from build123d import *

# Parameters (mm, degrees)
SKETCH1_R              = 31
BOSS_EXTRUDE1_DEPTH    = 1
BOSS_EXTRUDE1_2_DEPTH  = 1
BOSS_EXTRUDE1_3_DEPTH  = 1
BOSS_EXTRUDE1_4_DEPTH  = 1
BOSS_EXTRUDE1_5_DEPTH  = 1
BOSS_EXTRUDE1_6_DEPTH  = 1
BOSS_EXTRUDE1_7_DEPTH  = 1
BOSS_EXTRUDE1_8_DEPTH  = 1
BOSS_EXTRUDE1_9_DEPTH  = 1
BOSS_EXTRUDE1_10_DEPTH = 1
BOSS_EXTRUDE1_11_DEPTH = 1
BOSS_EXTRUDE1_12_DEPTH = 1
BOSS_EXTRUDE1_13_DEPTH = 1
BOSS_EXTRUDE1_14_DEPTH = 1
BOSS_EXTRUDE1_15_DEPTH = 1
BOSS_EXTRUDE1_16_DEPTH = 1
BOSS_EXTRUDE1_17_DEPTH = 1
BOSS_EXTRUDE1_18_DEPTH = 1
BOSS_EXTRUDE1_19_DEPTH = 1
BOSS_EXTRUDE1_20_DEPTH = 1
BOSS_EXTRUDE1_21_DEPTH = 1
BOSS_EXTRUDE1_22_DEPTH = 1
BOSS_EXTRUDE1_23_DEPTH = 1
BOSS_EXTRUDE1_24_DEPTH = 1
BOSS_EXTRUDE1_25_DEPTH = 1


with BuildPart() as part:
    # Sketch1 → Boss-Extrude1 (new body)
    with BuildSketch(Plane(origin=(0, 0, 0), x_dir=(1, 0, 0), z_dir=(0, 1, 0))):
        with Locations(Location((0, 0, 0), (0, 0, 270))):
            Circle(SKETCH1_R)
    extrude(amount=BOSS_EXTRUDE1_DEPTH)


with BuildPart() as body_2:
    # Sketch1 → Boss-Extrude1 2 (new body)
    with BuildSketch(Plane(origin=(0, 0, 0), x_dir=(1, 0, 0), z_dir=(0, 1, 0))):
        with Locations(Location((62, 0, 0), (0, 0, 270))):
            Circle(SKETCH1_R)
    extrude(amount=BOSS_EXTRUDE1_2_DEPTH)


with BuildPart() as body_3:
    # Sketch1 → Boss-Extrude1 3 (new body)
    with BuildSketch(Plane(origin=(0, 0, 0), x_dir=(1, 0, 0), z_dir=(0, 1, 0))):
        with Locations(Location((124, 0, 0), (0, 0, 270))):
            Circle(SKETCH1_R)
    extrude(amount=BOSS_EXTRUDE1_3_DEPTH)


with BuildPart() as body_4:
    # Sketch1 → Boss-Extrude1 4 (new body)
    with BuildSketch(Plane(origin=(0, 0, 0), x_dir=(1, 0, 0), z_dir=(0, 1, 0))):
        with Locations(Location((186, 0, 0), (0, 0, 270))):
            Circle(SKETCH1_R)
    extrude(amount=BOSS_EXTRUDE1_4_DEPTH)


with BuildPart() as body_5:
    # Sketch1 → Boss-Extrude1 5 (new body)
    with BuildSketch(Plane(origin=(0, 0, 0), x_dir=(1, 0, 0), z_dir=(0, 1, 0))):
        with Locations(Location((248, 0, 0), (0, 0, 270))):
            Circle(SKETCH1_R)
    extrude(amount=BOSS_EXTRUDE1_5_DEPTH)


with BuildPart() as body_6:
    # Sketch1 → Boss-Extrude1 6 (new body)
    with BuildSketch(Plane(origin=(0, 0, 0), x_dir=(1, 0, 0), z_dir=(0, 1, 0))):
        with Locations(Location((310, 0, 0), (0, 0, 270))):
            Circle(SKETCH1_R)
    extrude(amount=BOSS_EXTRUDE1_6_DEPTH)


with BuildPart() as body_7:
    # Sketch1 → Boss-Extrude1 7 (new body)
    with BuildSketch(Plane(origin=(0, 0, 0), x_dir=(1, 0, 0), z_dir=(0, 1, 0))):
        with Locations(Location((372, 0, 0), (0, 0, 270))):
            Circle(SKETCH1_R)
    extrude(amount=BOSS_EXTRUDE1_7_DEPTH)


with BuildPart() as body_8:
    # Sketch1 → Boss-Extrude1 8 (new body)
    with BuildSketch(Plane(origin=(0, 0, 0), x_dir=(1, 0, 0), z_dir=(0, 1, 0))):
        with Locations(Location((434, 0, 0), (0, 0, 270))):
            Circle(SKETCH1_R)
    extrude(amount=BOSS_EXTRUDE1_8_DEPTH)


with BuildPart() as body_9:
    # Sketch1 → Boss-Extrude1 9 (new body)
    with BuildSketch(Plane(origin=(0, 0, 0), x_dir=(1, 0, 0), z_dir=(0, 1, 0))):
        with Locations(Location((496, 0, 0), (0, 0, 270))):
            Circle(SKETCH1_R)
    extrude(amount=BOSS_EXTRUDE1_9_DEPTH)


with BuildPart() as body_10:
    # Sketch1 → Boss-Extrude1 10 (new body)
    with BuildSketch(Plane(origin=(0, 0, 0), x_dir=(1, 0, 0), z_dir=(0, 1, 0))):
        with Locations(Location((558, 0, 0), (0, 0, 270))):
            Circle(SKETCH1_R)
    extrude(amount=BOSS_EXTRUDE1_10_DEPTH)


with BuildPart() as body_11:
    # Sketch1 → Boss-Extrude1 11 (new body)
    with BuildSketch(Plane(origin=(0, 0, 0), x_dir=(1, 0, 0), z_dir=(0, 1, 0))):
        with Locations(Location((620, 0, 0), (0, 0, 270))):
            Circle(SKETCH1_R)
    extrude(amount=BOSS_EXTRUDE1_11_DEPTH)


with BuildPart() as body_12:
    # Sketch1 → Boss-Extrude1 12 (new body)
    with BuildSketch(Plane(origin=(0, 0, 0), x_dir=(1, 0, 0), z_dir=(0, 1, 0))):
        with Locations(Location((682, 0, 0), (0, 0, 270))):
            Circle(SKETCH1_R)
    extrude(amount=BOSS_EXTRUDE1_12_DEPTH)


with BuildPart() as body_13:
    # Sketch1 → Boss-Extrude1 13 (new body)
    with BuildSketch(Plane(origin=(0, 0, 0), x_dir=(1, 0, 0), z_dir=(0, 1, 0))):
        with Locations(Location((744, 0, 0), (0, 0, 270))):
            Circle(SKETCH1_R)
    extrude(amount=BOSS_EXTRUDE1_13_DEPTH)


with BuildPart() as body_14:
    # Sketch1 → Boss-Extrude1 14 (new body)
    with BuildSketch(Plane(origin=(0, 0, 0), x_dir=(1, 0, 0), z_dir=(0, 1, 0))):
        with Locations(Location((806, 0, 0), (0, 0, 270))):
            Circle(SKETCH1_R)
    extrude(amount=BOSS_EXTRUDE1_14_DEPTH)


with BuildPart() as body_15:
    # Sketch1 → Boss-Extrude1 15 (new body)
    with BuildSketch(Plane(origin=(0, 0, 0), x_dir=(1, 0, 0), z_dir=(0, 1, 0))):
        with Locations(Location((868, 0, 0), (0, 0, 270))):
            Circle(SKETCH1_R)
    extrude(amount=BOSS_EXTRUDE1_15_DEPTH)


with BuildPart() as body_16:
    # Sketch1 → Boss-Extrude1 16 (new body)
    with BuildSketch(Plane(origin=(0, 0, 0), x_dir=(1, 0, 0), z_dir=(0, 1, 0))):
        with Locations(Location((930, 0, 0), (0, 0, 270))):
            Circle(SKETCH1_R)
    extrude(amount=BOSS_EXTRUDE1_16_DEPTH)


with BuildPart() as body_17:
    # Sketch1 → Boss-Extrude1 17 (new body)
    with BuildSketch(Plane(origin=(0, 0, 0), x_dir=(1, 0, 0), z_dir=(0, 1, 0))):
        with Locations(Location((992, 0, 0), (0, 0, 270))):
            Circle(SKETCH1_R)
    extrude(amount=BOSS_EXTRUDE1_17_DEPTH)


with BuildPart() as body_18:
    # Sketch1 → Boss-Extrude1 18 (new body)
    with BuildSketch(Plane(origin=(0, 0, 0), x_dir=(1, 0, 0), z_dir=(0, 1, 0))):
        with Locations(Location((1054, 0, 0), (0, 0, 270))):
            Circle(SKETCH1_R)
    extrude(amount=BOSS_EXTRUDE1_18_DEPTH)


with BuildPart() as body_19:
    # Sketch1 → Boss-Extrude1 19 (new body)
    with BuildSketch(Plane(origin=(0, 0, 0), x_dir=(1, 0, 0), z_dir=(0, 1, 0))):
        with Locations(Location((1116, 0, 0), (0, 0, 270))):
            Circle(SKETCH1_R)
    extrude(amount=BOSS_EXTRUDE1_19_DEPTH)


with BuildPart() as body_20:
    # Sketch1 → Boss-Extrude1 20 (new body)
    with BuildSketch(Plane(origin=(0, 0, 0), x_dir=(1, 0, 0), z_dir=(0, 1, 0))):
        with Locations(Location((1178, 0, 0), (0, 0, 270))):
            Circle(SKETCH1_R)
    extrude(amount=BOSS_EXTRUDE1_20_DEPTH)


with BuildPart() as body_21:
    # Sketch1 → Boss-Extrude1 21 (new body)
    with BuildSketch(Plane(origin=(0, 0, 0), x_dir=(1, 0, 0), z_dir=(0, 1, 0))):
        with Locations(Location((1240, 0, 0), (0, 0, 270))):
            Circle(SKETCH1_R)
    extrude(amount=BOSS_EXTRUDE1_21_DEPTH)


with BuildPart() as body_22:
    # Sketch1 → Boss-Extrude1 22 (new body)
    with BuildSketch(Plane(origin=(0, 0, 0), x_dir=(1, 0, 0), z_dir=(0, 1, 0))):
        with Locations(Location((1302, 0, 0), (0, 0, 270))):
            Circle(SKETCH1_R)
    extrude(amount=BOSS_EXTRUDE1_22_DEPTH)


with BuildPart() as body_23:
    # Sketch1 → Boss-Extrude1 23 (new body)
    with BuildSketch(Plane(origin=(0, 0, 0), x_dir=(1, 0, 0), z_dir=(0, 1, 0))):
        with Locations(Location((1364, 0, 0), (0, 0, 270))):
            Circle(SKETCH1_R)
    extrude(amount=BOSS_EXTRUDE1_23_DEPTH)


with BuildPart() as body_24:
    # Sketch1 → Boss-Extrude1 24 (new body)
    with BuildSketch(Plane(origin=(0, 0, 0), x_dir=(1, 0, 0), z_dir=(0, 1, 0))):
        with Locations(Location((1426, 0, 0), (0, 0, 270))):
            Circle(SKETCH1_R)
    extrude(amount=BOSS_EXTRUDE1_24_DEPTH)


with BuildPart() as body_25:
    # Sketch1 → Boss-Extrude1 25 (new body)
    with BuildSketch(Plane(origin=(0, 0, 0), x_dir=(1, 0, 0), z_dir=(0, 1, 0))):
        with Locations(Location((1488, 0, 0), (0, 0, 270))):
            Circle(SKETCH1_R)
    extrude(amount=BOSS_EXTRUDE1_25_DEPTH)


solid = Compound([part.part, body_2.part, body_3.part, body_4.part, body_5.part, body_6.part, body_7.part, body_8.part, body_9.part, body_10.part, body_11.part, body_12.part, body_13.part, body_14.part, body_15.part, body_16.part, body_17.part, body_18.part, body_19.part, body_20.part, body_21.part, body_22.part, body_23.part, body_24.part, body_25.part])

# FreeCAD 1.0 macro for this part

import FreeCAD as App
import Part
import Sketcher

V = App.Vector

doc = App.newDocument("Part")
body = doc.addObject("PartDesign::Body", "Body")

sketch1 = body.newObject("Sketcher::SketchObject", "Sketch")
sketch1.AttachmentSupport = (doc.getObject("XZ_Plane"), [""])
sketch1.MapMode = "FlatFace"
sketch1.addGeometry(Part.Circle(V(0, 0, 0), V(0, 0, 1), 31), False)
sketch1.addConstraint([
    Sketcher.Constraint("Coincident", 0, 3, -1, 1),
    Sketcher.Constraint("Diameter", 0, 62.0),
])
pad1 = body.newObject("PartDesign::Pad", "Pad")
pad1.Profile = sketch1
pad1.Length = 1
pad1.Reversed = True
body2 = doc.addObject("PartDesign::Body", "Body001")

sketch2 = body2.newObject("Sketcher::SketchObject", "Sketch001")
sketch2.AttachmentSupport = (doc.getObject("XZ_Plane001"), [""])
sketch2.MapMode = "FlatFace"
sketch2.addGeometry(Part.Circle(V(62, 0, 0), V(0, 0, 1), 31), False)
sketch2.addConstraint([
    Sketcher.Constraint("PointOnObject", 0, 3, -1),
    Sketcher.Constraint("Diameter", 0, 62.0),
    Sketcher.Constraint("DistanceX", -1, 1, 0, 3, 62.0),
])
pad2 = body2.newObject("PartDesign::Pad", "Pad001")
pad2.Profile = sketch2
pad2.Length = 1
pad2.Reversed = True
body3 = doc.addObject("PartDesign::Body", "Body002")

sketch3 = body3.newObject("Sketcher::SketchObject", "Sketch002")
sketch3.AttachmentSupport = (doc.getObject("XZ_Plane002"), [""])
sketch3.MapMode = "FlatFace"
sketch3.addGeometry(Part.Circle(V(124, 0, 0), V(0, 0, 1), 31), False)
sketch3.addConstraint([
    Sketcher.Constraint("PointOnObject", 0, 3, -1),
    Sketcher.Constraint("Diameter", 0, 62.0),
    Sketcher.Constraint("DistanceX", -1, 1, 0, 3, 124.0),
])
pad3 = body3.newObject("PartDesign::Pad", "Pad002")
pad3.Profile = sketch3
pad3.Length = 1
pad3.Reversed = True
body4 = doc.addObject("PartDesign::Body", "Body003")

sketch4 = body4.newObject("Sketcher::SketchObject", "Sketch003")
sketch4.AttachmentSupport = (doc.getObject("XZ_Plane003"), [""])
sketch4.MapMode = "FlatFace"
sketch4.addGeometry(Part.Circle(V(186, 0, 0), V(0, 0, 1), 31), False)
sketch4.addConstraint([
    Sketcher.Constraint("PointOnObject", 0, 3, -1),
    Sketcher.Constraint("Diameter", 0, 62.0),
    Sketcher.Constraint("DistanceX", -1, 1, 0, 3, 186.0),
])
pad4 = body4.newObject("PartDesign::Pad", "Pad003")
pad4.Profile = sketch4
pad4.Length = 1
pad4.Reversed = True
body5 = doc.addObject("PartDesign::Body", "Body004")

sketch5 = body5.newObject("Sketcher::SketchObject", "Sketch004")
sketch5.AttachmentSupport = (doc.getObject("XZ_Plane004"), [""])
sketch5.MapMode = "FlatFace"
sketch5.addGeometry(Part.Circle(V(248, 0, 0), V(0, 0, 1), 31), False)
sketch5.addConstraint([
    Sketcher.Constraint("PointOnObject", 0, 3, -1),
    Sketcher.Constraint("Diameter", 0, 62.0),
    Sketcher.Constraint("DistanceX", -1, 1, 0, 3, 248.0),
])
pad5 = body5.newObject("PartDesign::Pad", "Pad004")
pad5.Profile = sketch5
pad5.Length = 1
pad5.Reversed = True
body6 = doc.addObject("PartDesign::Body", "Body005")

sketch6 = body6.newObject("Sketcher::SketchObject", "Sketch005")
sketch6.AttachmentSupport = (doc.getObject("XZ_Plane005"), [""])
sketch6.MapMode = "FlatFace"
sketch6.addGeometry(Part.Circle(V(310, 0, 0), V(0, 0, 1), 31), False)
sketch6.addConstraint([
    Sketcher.Constraint("PointOnObject", 0, 3, -1),
    Sketcher.Constraint("Diameter", 0, 62.0),
    Sketcher.Constraint("DistanceX", -1, 1, 0, 3, 310.0),
])
pad6 = body6.newObject("PartDesign::Pad", "Pad005")
pad6.Profile = sketch6
pad6.Length = 1
pad6.Reversed = True
body7 = doc.addObject("PartDesign::Body", "Body006")

sketch7 = body7.newObject("Sketcher::SketchObject", "Sketch006")
sketch7.AttachmentSupport = (doc.getObject("XZ_Plane006"), [""])
sketch7.MapMode = "FlatFace"
sketch7.addGeometry(Part.Circle(V(372, 0, 0), V(0, 0, 1), 31), False)
sketch7.addConstraint([
    Sketcher.Constraint("PointOnObject", 0, 3, -1),
    Sketcher.Constraint("Diameter", 0, 62.0),
    Sketcher.Constraint("DistanceX", -1, 1, 0, 3, 372.0),
])
pad7 = body7.newObject("PartDesign::Pad", "Pad006")
pad7.Profile = sketch7
pad7.Length = 1
pad7.Reversed = True
body8 = doc.addObject("PartDesign::Body", "Body007")

sketch8 = body8.newObject("Sketcher::SketchObject", "Sketch007")
sketch8.AttachmentSupport = (doc.getObject("XZ_Plane007"), [""])
sketch8.MapMode = "FlatFace"
sketch8.addGeometry(Part.Circle(V(434, 0, 0), V(0, 0, 1), 31), False)
sketch8.addConstraint([
    Sketcher.Constraint("PointOnObject", 0, 3, -1),
    Sketcher.Constraint("Diameter", 0, 62.0),
    Sketcher.Constraint("DistanceX", -1, 1, 0, 3, 434.0),
])
pad8 = body8.newObject("PartDesign::Pad", "Pad007")
pad8.Profile = sketch8
pad8.Length = 1
pad8.Reversed = True
body9 = doc.addObject("PartDesign::Body", "Body008")

sketch9 = body9.newObject("Sketcher::SketchObject", "Sketch008")
sketch9.AttachmentSupport = (doc.getObject("XZ_Plane008"), [""])
sketch9.MapMode = "FlatFace"
sketch9.addGeometry(Part.Circle(V(496, 0, 0), V(0, 0, 1), 31), False)
sketch9.addConstraint([
    Sketcher.Constraint("PointOnObject", 0, 3, -1),
    Sketcher.Constraint("Diameter", 0, 62.0),
    Sketcher.Constraint("DistanceX", -1, 1, 0, 3, 496.0),
])
pad9 = body9.newObject("PartDesign::Pad", "Pad008")
pad9.Profile = sketch9
pad9.Length = 1
pad9.Reversed = True
body10 = doc.addObject("PartDesign::Body", "Body009")

sketch10 = body10.newObject("Sketcher::SketchObject", "Sketch009")
sketch10.AttachmentSupport = (doc.getObject("XZ_Plane009"), [""])
sketch10.MapMode = "FlatFace"
sketch10.addGeometry(Part.Circle(V(558, 0, 0), V(0, 0, 1), 31), False)
sketch10.addConstraint([
    Sketcher.Constraint("PointOnObject", 0, 3, -1),
    Sketcher.Constraint("Diameter", 0, 62.0),
    Sketcher.Constraint("DistanceX", -1, 1, 0, 3, 558.0),
])
pad10 = body10.newObject("PartDesign::Pad", "Pad009")
pad10.Profile = sketch10
pad10.Length = 1
pad10.Reversed = True
body11 = doc.addObject("PartDesign::Body", "Body010")

sketch11 = body11.newObject("Sketcher::SketchObject", "Sketch010")
sketch11.AttachmentSupport = (doc.getObject("XZ_Plane010"), [""])
sketch11.MapMode = "FlatFace"
sketch11.addGeometry(Part.Circle(V(620, 0, 0), V(0, 0, 1), 31), False)
sketch11.addConstraint([
    Sketcher.Constraint("PointOnObject", 0, 3, -1),
    Sketcher.Constraint("Diameter", 0, 62.0),
    Sketcher.Constraint("DistanceX", -1, 1, 0, 3, 620.0),
])
pad11 = body11.newObject("PartDesign::Pad", "Pad010")
pad11.Profile = sketch11
pad11.Length = 1
pad11.Reversed = True
body12 = doc.addObject("PartDesign::Body", "Body011")

sketch12 = body12.newObject("Sketcher::SketchObject", "Sketch011")
sketch12.AttachmentSupport = (doc.getObject("XZ_Plane011"), [""])
sketch12.MapMode = "FlatFace"
sketch12.addGeometry(Part.Circle(V(682, 0, 0), V(0, 0, 1), 31), False)
sketch12.addConstraint([
    Sketcher.Constraint("PointOnObject", 0, 3, -1),
    Sketcher.Constraint("Diameter", 0, 62.0),
    Sketcher.Constraint("DistanceX", -1, 1, 0, 3, 682.0),
])
pad12 = body12.newObject("PartDesign::Pad", "Pad011")
pad12.Profile = sketch12
pad12.Length = 1
pad12.Reversed = True
body13 = doc.addObject("PartDesign::Body", "Body012")

sketch13 = body13.newObject("Sketcher::SketchObject", "Sketch012")
sketch13.AttachmentSupport = (doc.getObject("XZ_Plane012"), [""])
sketch13.MapMode = "FlatFace"
sketch13.addGeometry(Part.Circle(V(744, 0, 0), V(0, 0, 1), 31), False)
sketch13.addConstraint([
    Sketcher.Constraint("PointOnObject", 0, 3, -1),
    Sketcher.Constraint("Diameter", 0, 62.0),
    Sketcher.Constraint("DistanceX", -1, 1, 0, 3, 744.0),
])
pad13 = body13.newObject("PartDesign::Pad", "Pad012")
pad13.Profile = sketch13
pad13.Length = 1
pad13.Reversed = True
body14 = doc.addObject("PartDesign::Body", "Body013")

sketch14 = body14.newObject("Sketcher::SketchObject", "Sketch013")
sketch14.AttachmentSupport = (doc.getObject("XZ_Plane013"), [""])
sketch14.MapMode = "FlatFace"
sketch14.addGeometry(Part.Circle(V(806, 0, 0), V(0, 0, 1), 31), False)
sketch14.addConstraint([
    Sketcher.Constraint("PointOnObject", 0, 3, -1),
    Sketcher.Constraint("Diameter", 0, 62.0),
    Sketcher.Constraint("DistanceX", -1, 1, 0, 3, 806.0),
])
pad14 = body14.newObject("PartDesign::Pad", "Pad013")
pad14.Profile = sketch14
pad14.Length = 1
pad14.Reversed = True
body15 = doc.addObject("PartDesign::Body", "Body014")

sketch15 = body15.newObject("Sketcher::SketchObject", "Sketch014")
sketch15.AttachmentSupport = (doc.getObject("XZ_Plane014"), [""])
sketch15.MapMode = "FlatFace"
sketch15.addGeometry(Part.Circle(V(868, 0, 0), V(0, 0, 1), 31), False)
sketch15.addConstraint([
    Sketcher.Constraint("PointOnObject", 0, 3, -1),
    Sketcher.Constraint("Diameter", 0, 62.0),
    Sketcher.Constraint("DistanceX", -1, 1, 0, 3, 868.0),
])
pad15 = body15.newObject("PartDesign::Pad", "Pad014")
pad15.Profile = sketch15
pad15.Length = 1
pad15.Reversed = True
body16 = doc.addObject("PartDesign::Body", "Body015")

sketch16 = body16.newObject("Sketcher::SketchObject", "Sketch015")
sketch16.AttachmentSupport = (doc.getObject("XZ_Plane015"), [""])
sketch16.MapMode = "FlatFace"
sketch16.addGeometry(Part.Circle(V(930, 0, 0), V(0, 0, 1), 31), False)
sketch16.addConstraint([
    Sketcher.Constraint("PointOnObject", 0, 3, -1),
    Sketcher.Constraint("Diameter", 0, 62.0),
    Sketcher.Constraint("DistanceX", -1, 1, 0, 3, 930.0),
])
pad16 = body16.newObject("PartDesign::Pad", "Pad015")
pad16.Profile = sketch16
pad16.Length = 1
pad16.Reversed = True
body17 = doc.addObject("PartDesign::Body", "Body016")

sketch17 = body17.newObject("Sketcher::SketchObject", "Sketch016")
sketch17.AttachmentSupport = (doc.getObject("XZ_Plane016"), [""])
sketch17.MapMode = "FlatFace"
sketch17.addGeometry(Part.Circle(V(992, 0, 0), V(0, 0, 1), 31), False)
sketch17.addConstraint([
    Sketcher.Constraint("PointOnObject", 0, 3, -1),
    Sketcher.Constraint("Diameter", 0, 62.0),
    Sketcher.Constraint("DistanceX", -1, 1, 0, 3, 992.0),
])
pad17 = body17.newObject("PartDesign::Pad", "Pad016")
pad17.Profile = sketch17
pad17.Length = 1
pad17.Reversed = True
body18 = doc.addObject("PartDesign::Body", "Body017")

sketch18 = body18.newObject("Sketcher::SketchObject", "Sketch017")
sketch18.AttachmentSupport = (doc.getObject("XZ_Plane017"), [""])
sketch18.MapMode = "FlatFace"
sketch18.addGeometry(Part.Circle(V(1054, 0, 0), V(0, 0, 1), 31), False)
sketch18.addConstraint([
    Sketcher.Constraint("PointOnObject", 0, 3, -1),
    Sketcher.Constraint("Diameter", 0, 62.0),
    Sketcher.Constraint("DistanceX", -1, 1, 0, 3, 1054.0),
])
pad18 = body18.newObject("PartDesign::Pad", "Pad017")
pad18.Profile = sketch18
pad18.Length = 1
pad18.Reversed = True
body19 = doc.addObject("PartDesign::Body", "Body018")

sketch19 = body19.newObject("Sketcher::SketchObject", "Sketch018")
sketch19.AttachmentSupport = (doc.getObject("XZ_Plane018"), [""])
sketch19.MapMode = "FlatFace"
sketch19.addGeometry(Part.Circle(V(1116, 0, 0), V(0, 0, 1), 31), False)
sketch19.addConstraint([
    Sketcher.Constraint("PointOnObject", 0, 3, -1),
    Sketcher.Constraint("Diameter", 0, 62.0),
    Sketcher.Constraint("DistanceX", -1, 1, 0, 3, 1116.0),
])
pad19 = body19.newObject("PartDesign::Pad", "Pad018")
pad19.Profile = sketch19
pad19.Length = 1
pad19.Reversed = True
body20 = doc.addObject("PartDesign::Body", "Body019")

sketch20 = body20.newObject("Sketcher::SketchObject", "Sketch019")
sketch20.AttachmentSupport = (doc.getObject("XZ_Plane019"), [""])
sketch20.MapMode = "FlatFace"
sketch20.addGeometry(Part.Circle(V(1178, 0, 0), V(0, 0, 1), 31), False)
sketch20.addConstraint([
    Sketcher.Constraint("PointOnObject", 0, 3, -1),
    Sketcher.Constraint("Diameter", 0, 62.0),
    Sketcher.Constraint("DistanceX", -1, 1, 0, 3, 1178.0),
])
pad20 = body20.newObject("PartDesign::Pad", "Pad019")
pad20.Profile = sketch20
pad20.Length = 1
pad20.Reversed = True
body21 = doc.addObject("PartDesign::Body", "Body020")

sketch21 = body21.newObject("Sketcher::SketchObject", "Sketch020")
sketch21.AttachmentSupport = (doc.getObject("XZ_Plane020"), [""])
sketch21.MapMode = "FlatFace"
sketch21.addGeometry(Part.Circle(V(1240, 0, 0), V(0, 0, 1), 31), False)
sketch21.addConstraint([
    Sketcher.Constraint("PointOnObject", 0, 3, -1),
    Sketcher.Constraint("Diameter", 0, 62.0),
    Sketcher.Constraint("DistanceX", -1, 1, 0, 3, 1240.0),
])
pad21 = body21.newObject("PartDesign::Pad", "Pad020")
pad21.Profile = sketch21
pad21.Length = 1
pad21.Reversed = True
body22 = doc.addObject("PartDesign::Body", "Body021")

sketch22 = body22.newObject("Sketcher::SketchObject", "Sketch021")
sketch22.AttachmentSupport = (doc.getObject("XZ_Plane021"), [""])
sketch22.MapMode = "FlatFace"
sketch22.addGeometry(Part.Circle(V(1302, 0, 0), V(0, 0, 1), 31), False)
sketch22.addConstraint([
    Sketcher.Constraint("PointOnObject", 0, 3, -1),
    Sketcher.Constraint("Diameter", 0, 62.0),
    Sketcher.Constraint("DistanceX", -1, 1, 0, 3, 1302.0),
])
pad22 = body22.newObject("PartDesign::Pad", "Pad021")
pad22.Profile = sketch22
pad22.Length = 1
pad22.Reversed = True
body23 = doc.addObject("PartDesign::Body", "Body022")

sketch23 = body23.newObject("Sketcher::SketchObject", "Sketch022")
sketch23.AttachmentSupport = (doc.getObject("XZ_Plane022"), [""])
sketch23.MapMode = "FlatFace"
sketch23.addGeometry(Part.Circle(V(1364, 0, 0), V(0, 0, 1), 31), False)
sketch23.addConstraint([
    Sketcher.Constraint("PointOnObject", 0, 3, -1),
    Sketcher.Constraint("Diameter", 0, 62.0),
    Sketcher.Constraint("DistanceX", -1, 1, 0, 3, 1364.0),
])
pad23 = body23.newObject("PartDesign::Pad", "Pad022")
pad23.Profile = sketch23
pad23.Length = 1
pad23.Reversed = True
body24 = doc.addObject("PartDesign::Body", "Body023")

sketch24 = body24.newObject("Sketcher::SketchObject", "Sketch023")
sketch24.AttachmentSupport = (doc.getObject("XZ_Plane023"), [""])
sketch24.MapMode = "FlatFace"
sketch24.addGeometry(Part.Circle(V(1426, 0, 0), V(0, 0, 1), 31), False)
sketch24.addConstraint([
    Sketcher.Constraint("PointOnObject", 0, 3, -1),
    Sketcher.Constraint("Diameter", 0, 62.0),
    Sketcher.Constraint("DistanceX", -1, 1, 0, 3, 1426.0),
])
pad24 = body24.newObject("PartDesign::Pad", "Pad023")
pad24.Profile = sketch24
pad24.Length = 1
pad24.Reversed = True
body25 = doc.addObject("PartDesign::Body", "Body024")

sketch25 = body25.newObject("Sketcher::SketchObject", "Sketch024")
sketch25.AttachmentSupport = (doc.getObject("XZ_Plane024"), [""])
sketch25.MapMode = "FlatFace"
sketch25.addGeometry(Part.Circle(V(1488, 0, 0), V(0, 0, 1), 31), False)
sketch25.addConstraint([
    Sketcher.Constraint("PointOnObject", 0, 3, -1),
    Sketcher.Constraint("Diameter", 0, 62.0),
    Sketcher.Constraint("DistanceX", -1, 1, 0, 3, 1488.0),
])
pad25 = body25.newObject("PartDesign::Pad", "Pad024")
pad25.Profile = sketch25
pad25.Length = 1
pad25.Reversed = True

doc.recompute()
